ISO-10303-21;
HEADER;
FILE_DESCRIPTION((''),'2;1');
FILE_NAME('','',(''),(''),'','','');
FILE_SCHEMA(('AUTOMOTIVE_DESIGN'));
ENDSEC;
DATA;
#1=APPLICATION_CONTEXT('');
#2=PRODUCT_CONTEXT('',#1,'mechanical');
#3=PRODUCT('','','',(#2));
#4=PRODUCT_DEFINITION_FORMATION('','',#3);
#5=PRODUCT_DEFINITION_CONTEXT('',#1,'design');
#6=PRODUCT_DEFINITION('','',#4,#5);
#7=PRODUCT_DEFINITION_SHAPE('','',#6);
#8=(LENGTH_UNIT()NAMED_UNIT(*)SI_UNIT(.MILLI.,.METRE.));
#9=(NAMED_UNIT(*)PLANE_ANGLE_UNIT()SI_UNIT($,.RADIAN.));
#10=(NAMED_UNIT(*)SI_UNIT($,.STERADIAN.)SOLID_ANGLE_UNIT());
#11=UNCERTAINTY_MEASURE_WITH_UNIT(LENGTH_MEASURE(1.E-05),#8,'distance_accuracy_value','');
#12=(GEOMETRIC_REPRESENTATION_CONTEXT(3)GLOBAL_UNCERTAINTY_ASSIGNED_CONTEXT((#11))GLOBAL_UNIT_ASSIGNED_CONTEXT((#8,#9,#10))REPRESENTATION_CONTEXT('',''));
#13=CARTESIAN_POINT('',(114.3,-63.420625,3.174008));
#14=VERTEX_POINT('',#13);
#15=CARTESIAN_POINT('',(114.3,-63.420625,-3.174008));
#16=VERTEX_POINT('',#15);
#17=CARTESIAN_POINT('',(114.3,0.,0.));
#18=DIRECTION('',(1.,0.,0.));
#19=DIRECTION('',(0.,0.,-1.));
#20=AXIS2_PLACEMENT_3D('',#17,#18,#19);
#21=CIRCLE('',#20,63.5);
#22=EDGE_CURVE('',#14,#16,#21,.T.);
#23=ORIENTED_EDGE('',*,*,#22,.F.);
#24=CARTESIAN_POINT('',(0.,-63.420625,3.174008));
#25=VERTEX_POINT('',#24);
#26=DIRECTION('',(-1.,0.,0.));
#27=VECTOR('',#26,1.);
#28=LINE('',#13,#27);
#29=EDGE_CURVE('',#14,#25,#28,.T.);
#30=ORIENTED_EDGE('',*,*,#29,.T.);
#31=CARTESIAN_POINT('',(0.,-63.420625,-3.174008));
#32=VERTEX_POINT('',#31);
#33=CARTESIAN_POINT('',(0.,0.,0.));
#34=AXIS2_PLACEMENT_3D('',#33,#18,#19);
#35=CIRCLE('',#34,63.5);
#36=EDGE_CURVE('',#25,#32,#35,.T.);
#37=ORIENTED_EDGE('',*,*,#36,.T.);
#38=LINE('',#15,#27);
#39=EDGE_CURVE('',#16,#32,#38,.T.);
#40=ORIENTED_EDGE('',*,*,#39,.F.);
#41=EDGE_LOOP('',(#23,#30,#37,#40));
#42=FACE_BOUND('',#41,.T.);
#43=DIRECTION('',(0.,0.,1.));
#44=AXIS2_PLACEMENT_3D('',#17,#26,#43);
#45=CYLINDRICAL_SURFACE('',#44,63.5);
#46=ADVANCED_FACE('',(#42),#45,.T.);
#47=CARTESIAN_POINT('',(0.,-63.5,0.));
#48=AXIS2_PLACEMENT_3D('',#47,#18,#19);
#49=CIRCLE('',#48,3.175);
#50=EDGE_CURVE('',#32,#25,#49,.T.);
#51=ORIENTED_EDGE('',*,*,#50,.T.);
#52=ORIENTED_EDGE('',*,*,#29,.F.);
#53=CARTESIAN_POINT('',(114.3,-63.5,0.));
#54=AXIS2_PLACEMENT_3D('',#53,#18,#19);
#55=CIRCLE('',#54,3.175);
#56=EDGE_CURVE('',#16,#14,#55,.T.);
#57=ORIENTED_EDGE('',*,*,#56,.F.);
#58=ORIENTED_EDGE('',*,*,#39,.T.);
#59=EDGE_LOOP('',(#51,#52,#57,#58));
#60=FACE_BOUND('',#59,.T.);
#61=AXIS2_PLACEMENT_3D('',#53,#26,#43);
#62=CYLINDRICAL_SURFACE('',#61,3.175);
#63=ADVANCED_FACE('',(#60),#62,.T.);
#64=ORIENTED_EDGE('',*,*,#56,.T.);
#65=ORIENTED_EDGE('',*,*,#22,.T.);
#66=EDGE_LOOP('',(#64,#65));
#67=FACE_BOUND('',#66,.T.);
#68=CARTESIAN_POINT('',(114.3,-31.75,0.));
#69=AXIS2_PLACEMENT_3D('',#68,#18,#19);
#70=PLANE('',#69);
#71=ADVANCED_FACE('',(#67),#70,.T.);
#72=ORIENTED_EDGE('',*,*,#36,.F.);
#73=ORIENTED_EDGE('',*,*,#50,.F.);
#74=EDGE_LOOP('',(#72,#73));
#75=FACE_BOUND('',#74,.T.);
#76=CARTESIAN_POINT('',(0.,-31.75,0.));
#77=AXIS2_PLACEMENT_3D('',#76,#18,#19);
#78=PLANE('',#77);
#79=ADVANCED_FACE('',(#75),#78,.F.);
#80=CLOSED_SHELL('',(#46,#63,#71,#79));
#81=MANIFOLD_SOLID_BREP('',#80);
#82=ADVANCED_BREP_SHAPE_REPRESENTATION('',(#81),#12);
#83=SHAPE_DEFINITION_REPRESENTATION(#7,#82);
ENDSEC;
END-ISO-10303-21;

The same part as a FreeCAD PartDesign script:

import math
import FreeCAD as App
import Part
import Sketcher
Q = App.Units.Quantity

doc = App.newDocument("Part")
body = doc.addObject("PartDesign::Body", "Body")

# Sketch on YZ plane
sketch1 = body.newObject("Sketcher::SketchObject", "Sketch")
sketch1.AttachmentSupport = (doc.getObject("YZ_Plane"), [""])
sketch1.MapMode = "FlatFace"
sketch1.addGeometry([
    Part.ArcOfCircle(Part.Circle(App.Vector(0, 0, 0), App.Vector(0, 0, 1), 63.5), math.radians(177.134913), math.radians(182.865087)),
    Part.ArcOfCircle(Part.Circle(App.Vector(-63.5, 0, 0), App.Vector(0, 0, 1), 3.175), math.radians(-88.567456), math.radians(88.567456)),
], False)
sketch1.addConstraint([
    Sketcher.Constraint("Coincident", 0, 1, 1, 2),
    Sketcher.Constraint("Coincident", 1, 1, 0, 2),
    Sketcher.Constraint("Coincident", 0, 3, -1, 1),
    Sketcher.Constraint("PointOnObject", 1, 3, -1),
    Sketcher.Constraint("Radius", 0, Q("2.5 in")),
    Sketcher.Constraint("Radius", 1, Q("0.125 in")),
    Sketcher.Constraint("DistanceX", 1, 3, -1, 1, Q("2.5 in")),
])
pad1 = body.newObject("PartDesign::Pad", "Pad")
pad1.Profile = sketch1
pad1.Length = Q("4.5 in")

doc.recompute()
